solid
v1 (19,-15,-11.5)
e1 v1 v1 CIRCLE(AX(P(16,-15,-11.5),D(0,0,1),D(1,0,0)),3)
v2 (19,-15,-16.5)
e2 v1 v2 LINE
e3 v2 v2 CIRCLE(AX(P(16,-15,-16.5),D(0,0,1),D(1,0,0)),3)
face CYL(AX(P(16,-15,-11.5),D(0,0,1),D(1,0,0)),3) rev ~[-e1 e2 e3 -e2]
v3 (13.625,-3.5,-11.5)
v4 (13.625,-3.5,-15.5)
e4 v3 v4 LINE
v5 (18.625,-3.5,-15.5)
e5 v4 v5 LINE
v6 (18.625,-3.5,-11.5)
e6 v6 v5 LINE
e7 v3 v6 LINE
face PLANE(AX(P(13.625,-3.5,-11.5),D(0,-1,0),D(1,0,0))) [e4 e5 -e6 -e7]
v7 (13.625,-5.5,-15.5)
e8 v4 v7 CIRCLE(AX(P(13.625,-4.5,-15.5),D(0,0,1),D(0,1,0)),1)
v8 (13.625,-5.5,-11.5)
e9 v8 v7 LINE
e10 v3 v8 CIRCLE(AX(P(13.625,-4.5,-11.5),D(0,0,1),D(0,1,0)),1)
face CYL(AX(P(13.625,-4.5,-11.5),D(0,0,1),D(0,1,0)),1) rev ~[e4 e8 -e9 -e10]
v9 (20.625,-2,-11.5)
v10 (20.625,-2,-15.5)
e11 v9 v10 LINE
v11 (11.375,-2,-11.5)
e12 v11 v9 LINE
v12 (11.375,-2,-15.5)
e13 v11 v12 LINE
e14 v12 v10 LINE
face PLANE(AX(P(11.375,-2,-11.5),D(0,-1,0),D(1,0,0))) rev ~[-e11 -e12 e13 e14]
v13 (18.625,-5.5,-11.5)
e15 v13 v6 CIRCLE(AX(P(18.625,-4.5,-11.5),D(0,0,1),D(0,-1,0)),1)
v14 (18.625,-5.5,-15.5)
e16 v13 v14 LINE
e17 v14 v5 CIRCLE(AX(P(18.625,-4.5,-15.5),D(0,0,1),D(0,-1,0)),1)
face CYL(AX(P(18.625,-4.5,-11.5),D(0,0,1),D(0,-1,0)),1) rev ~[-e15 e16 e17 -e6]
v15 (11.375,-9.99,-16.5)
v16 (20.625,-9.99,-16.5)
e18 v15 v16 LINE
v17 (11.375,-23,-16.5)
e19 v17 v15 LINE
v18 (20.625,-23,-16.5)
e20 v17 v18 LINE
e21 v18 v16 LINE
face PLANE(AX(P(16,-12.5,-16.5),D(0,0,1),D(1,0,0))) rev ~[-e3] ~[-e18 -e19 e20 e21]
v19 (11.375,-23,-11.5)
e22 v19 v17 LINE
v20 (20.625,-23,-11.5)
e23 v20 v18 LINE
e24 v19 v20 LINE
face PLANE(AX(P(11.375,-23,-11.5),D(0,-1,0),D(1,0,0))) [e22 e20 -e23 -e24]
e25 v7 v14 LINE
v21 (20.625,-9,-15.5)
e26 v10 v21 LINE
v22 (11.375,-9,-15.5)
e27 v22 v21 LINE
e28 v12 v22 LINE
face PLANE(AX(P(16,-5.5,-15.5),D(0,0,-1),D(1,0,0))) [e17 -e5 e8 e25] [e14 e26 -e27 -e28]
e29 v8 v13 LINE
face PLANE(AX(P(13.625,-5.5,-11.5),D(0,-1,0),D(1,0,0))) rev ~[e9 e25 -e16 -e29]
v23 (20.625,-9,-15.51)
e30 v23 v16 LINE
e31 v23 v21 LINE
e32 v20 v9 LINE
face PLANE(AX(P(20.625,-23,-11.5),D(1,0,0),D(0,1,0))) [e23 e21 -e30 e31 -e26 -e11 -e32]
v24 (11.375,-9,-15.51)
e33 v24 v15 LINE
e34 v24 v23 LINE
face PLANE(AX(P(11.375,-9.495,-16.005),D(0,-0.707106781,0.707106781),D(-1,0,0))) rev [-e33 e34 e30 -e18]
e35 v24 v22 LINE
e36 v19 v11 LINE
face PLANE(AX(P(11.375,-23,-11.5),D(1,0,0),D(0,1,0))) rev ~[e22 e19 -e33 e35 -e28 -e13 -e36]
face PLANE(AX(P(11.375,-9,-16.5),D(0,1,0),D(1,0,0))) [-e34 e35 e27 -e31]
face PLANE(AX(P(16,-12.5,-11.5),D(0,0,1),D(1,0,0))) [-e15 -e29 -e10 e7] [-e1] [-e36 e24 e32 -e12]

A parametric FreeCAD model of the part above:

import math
import FreeCAD as App
import Part
import Sketcher
from FreeCAD import Vector
Q = App.Units.Quantity


def edges_at(feature, points):
    """Names of the edges that pass closest to the given points."""
    edges = feature.Shape.Edges
    near = lambda p: min(range(len(edges)), key=lambda i: edges[i].distToShape(Part.Vertex(*p))[0])
    return sorted({f"Edge{near(p) + 1}" for p in points})

doc = App.newDocument("Part")
body = doc.addObject("PartDesign::Body", "Body")

# Sketch on XY plane
sketch1 = body.newObject("Sketcher::SketchObject", "Sketch")
sketch1.AttachmentSupport = (doc.getObject("XY_Plane"), [""])
sketch1.MapMode = "FlatFace"
sketch1.AttachmentOffset = App.Placement(Vector(0, 0, -11.5), App.Rotation())
sketch1.addGeometry(Part.LineSegment(Vector(11.4, -2, 0), Vector(11.4, -23, 0)), False)
sketch1.addGeometry(Part.LineSegment(Vector(11.4, -23, 0), Vector(20.6, -23, 0)), False)
sketch1.addGeometry(Part.LineSegment(Vector(20.6, -23, 0), Vector(20.6, -2, 0)), False)
sketch1.addGeometry(Part.LineSegment(Vector(20.6, -2, 0), Vector(11.4, -2, 0)), False)
sketch1.addGeometry(Part.Circle(Vector(16, -15, 0), Vector(0, 0, 1), 3), False)
sketch1.addGeometry(Part.ArcOfCircle(Part.Circle(Vector(13.6, -4.5, 0), Vector(0, 0, 1), 1), math.radians(90), math.radians(270)), False)
sketch1.addGeometry(Part.LineSegment(Vector(13.6, -3.5, 0), Vector(18.6, -3.5, 0)), False)
sketch1.addGeometry(Part.ArcOfCircle(Part.Circle(Vector(18.6, -4.5, 0), Vector(0, 0, 1), 1), math.radians(-90), math.radians(90)), False)
sketch1.addGeometry(Part.LineSegment(Vector(18.6, -5.5, 0), Vector(13.6, -5.5, 0)), False)
sketch1.addConstraint(Sketcher.Constraint("Coincident", 0, 2, 1, 1))
sketch1.addConstraint(Sketcher.Constraint("Coincident", 1, 2, 2, 1))
sketch1.addConstraint(Sketcher.Constraint("Coincident", 2, 2, 3, 1))
sketch1.addConstraint(Sketcher.Constraint("Coincident", 3, 2, 0, 1))
sketch1.addConstraint(Sketcher.Constraint("Tangent", 5, 1, 6, 1))
sketch1.addConstraint(Sketcher.Constraint("Tangent", 6, 2, 7, 2))
sketch1.addConstraint(Sketcher.Constraint("Tangent", 7, 1, 8, 1))
sketch1.addConstraint(Sketcher.Constraint("Tangent", 8, 2, 5, 2))
sketch1.addConstraint(Sketcher.Constraint("Vertical", 0))
sketch1.addConstraint(Sketcher.Constraint("Horizontal", 1))
sketch1.addConstraint(Sketcher.Constraint("Vertical", 2))
sketch1.addConstraint(Sketcher.Constraint("Horizontal", 3))
sketch1.addConstraint(Sketcher.Constraint("Horizontal", 6))
sketch1.addConstraint(Sketcher.Constraint("Horizontal", 8))
sketch1.addConstraint(Sketcher.Constraint("Diameter", 4, Q("6 mm")))
sketch1.addConstraint(Sketcher.Constraint("Radius", 5, Q("1 mm")))
sketch1.addConstraint(Sketcher.Constraint("DistanceX", 6, 1, 6, 2, Q("5 mm")))
sketch1.addConstraint(Sketcher.Constraint("DistanceY", 0, 2, 0, 1, Q("21 mm")))
sketch1.addConstraint(Sketcher.Constraint("DistanceX", -1, 1, 4, 3, Q("16 mm")))
sketch1.addConstraint(Sketcher.Constraint("DistanceY", 4, 3, -1, 1, Q("15 mm")))
sketch1.addConstraint(Sketcher.Constraint("DistanceY", 0, 2, -1, 1, Q("23 mm")))
sketch1.addConstraint(Sketcher.Constraint("DistanceX", 7, 3, 1, 2, Q("2 mm")))
sketch1.addConstraint(Sketcher.Constraint("DistanceX", 1, 1, 1, 2, Q("9.25 mm")))
sketch1.addConstraint(Sketcher.Constraint("DistanceY", 5, 3, -1, 1, Q("4.5 mm")))
sketch1.addConstraint(Sketcher.Constraint("DistanceX", -1, 1, 5, 3, Q("13.625 mm")))
pad1 = body.newObject("PartDesign::Pad", "Pad")
pad1.Profile = sketch1
pad1.Length = 5
pad1.Reversed = True

# Sketch on XY plane
sketch2 = body.newObject("Sketcher::SketchObject", "Sketch001")
sketch2.AttachmentSupport = (doc.getObject("XY_Plane"), [""])
sketch2.MapMode = "FlatFace"
sketch2.AttachmentOffset = App.Placement(Vector(0, 0, -16.5), App.Rotation())
sketch2.addGeometry(Part.LineSegment(Vector(11, -9, 0), Vector(11, -2, 0)), False)
sketch2.addGeometry(Part.LineSegment(Vector(11, -2, 0), Vector(21, -2, 0)), False)
sketch2.addGeometry(Part.LineSegment(Vector(21, -2, 0), Vector(21, -9, 0)), False)
sketch2.addGeometry(Part.LineSegment(Vector(21, -9, 0), Vector(11, -9, 0)), False)
sketch2.addConstraint(Sketcher.Constraint("Coincident", 0, 2, 1, 1))
sketch2.addConstraint(Sketcher.Constraint("Coincident", 1, 2, 2, 1))
sketch2.addConstraint(Sketcher.Constraint("Coincident", 2, 2, 3, 1))
sketch2.addConstraint(Sketcher.Constraint("Coincident", 3, 2, 0, 1))
sketch2.addConstraint(Sketcher.Constraint("Vertical", 0))
sketch2.addConstraint(Sketcher.Constraint("Horizontal", 1))
sketch2.addConstraint(Sketcher.Constraint("Vertical", 2))
sketch2.addConstraint(Sketcher.Constraint("Horizontal", 3))
sketch2.addConstraint(Sketcher.Constraint("DistanceY", 0, 1, 0, 2, Q("7 mm")))
sketch2.addConstraint(Sketcher.Constraint("DistanceY", 0, 2, -1, 1, Q("2 mm")))
sketch2.addConstraint(Sketcher.Constraint("DistanceX", 1, 1, 1, 2, Q("9.25 mm")))
sketch2.addConstraint(Sketcher.Constraint("DistanceX", -1, 1, 0, 2, Q("11.375 mm")))
pocket1 = body.newObject("PartDesign::Pocket", "Pocket")
pocket1.Profile = sketch2
pocket1.Length = 1
pocket1.Reversed = True
doc.recompute()

chamfer = body.newObject("PartDesign::Chamfer", "Chamfer")
chamfer.Base = (pocket1, edges_at(pocket1, [(16, -9, -16.5)]))
chamfer.Size = 0.99

doc.recompute()
